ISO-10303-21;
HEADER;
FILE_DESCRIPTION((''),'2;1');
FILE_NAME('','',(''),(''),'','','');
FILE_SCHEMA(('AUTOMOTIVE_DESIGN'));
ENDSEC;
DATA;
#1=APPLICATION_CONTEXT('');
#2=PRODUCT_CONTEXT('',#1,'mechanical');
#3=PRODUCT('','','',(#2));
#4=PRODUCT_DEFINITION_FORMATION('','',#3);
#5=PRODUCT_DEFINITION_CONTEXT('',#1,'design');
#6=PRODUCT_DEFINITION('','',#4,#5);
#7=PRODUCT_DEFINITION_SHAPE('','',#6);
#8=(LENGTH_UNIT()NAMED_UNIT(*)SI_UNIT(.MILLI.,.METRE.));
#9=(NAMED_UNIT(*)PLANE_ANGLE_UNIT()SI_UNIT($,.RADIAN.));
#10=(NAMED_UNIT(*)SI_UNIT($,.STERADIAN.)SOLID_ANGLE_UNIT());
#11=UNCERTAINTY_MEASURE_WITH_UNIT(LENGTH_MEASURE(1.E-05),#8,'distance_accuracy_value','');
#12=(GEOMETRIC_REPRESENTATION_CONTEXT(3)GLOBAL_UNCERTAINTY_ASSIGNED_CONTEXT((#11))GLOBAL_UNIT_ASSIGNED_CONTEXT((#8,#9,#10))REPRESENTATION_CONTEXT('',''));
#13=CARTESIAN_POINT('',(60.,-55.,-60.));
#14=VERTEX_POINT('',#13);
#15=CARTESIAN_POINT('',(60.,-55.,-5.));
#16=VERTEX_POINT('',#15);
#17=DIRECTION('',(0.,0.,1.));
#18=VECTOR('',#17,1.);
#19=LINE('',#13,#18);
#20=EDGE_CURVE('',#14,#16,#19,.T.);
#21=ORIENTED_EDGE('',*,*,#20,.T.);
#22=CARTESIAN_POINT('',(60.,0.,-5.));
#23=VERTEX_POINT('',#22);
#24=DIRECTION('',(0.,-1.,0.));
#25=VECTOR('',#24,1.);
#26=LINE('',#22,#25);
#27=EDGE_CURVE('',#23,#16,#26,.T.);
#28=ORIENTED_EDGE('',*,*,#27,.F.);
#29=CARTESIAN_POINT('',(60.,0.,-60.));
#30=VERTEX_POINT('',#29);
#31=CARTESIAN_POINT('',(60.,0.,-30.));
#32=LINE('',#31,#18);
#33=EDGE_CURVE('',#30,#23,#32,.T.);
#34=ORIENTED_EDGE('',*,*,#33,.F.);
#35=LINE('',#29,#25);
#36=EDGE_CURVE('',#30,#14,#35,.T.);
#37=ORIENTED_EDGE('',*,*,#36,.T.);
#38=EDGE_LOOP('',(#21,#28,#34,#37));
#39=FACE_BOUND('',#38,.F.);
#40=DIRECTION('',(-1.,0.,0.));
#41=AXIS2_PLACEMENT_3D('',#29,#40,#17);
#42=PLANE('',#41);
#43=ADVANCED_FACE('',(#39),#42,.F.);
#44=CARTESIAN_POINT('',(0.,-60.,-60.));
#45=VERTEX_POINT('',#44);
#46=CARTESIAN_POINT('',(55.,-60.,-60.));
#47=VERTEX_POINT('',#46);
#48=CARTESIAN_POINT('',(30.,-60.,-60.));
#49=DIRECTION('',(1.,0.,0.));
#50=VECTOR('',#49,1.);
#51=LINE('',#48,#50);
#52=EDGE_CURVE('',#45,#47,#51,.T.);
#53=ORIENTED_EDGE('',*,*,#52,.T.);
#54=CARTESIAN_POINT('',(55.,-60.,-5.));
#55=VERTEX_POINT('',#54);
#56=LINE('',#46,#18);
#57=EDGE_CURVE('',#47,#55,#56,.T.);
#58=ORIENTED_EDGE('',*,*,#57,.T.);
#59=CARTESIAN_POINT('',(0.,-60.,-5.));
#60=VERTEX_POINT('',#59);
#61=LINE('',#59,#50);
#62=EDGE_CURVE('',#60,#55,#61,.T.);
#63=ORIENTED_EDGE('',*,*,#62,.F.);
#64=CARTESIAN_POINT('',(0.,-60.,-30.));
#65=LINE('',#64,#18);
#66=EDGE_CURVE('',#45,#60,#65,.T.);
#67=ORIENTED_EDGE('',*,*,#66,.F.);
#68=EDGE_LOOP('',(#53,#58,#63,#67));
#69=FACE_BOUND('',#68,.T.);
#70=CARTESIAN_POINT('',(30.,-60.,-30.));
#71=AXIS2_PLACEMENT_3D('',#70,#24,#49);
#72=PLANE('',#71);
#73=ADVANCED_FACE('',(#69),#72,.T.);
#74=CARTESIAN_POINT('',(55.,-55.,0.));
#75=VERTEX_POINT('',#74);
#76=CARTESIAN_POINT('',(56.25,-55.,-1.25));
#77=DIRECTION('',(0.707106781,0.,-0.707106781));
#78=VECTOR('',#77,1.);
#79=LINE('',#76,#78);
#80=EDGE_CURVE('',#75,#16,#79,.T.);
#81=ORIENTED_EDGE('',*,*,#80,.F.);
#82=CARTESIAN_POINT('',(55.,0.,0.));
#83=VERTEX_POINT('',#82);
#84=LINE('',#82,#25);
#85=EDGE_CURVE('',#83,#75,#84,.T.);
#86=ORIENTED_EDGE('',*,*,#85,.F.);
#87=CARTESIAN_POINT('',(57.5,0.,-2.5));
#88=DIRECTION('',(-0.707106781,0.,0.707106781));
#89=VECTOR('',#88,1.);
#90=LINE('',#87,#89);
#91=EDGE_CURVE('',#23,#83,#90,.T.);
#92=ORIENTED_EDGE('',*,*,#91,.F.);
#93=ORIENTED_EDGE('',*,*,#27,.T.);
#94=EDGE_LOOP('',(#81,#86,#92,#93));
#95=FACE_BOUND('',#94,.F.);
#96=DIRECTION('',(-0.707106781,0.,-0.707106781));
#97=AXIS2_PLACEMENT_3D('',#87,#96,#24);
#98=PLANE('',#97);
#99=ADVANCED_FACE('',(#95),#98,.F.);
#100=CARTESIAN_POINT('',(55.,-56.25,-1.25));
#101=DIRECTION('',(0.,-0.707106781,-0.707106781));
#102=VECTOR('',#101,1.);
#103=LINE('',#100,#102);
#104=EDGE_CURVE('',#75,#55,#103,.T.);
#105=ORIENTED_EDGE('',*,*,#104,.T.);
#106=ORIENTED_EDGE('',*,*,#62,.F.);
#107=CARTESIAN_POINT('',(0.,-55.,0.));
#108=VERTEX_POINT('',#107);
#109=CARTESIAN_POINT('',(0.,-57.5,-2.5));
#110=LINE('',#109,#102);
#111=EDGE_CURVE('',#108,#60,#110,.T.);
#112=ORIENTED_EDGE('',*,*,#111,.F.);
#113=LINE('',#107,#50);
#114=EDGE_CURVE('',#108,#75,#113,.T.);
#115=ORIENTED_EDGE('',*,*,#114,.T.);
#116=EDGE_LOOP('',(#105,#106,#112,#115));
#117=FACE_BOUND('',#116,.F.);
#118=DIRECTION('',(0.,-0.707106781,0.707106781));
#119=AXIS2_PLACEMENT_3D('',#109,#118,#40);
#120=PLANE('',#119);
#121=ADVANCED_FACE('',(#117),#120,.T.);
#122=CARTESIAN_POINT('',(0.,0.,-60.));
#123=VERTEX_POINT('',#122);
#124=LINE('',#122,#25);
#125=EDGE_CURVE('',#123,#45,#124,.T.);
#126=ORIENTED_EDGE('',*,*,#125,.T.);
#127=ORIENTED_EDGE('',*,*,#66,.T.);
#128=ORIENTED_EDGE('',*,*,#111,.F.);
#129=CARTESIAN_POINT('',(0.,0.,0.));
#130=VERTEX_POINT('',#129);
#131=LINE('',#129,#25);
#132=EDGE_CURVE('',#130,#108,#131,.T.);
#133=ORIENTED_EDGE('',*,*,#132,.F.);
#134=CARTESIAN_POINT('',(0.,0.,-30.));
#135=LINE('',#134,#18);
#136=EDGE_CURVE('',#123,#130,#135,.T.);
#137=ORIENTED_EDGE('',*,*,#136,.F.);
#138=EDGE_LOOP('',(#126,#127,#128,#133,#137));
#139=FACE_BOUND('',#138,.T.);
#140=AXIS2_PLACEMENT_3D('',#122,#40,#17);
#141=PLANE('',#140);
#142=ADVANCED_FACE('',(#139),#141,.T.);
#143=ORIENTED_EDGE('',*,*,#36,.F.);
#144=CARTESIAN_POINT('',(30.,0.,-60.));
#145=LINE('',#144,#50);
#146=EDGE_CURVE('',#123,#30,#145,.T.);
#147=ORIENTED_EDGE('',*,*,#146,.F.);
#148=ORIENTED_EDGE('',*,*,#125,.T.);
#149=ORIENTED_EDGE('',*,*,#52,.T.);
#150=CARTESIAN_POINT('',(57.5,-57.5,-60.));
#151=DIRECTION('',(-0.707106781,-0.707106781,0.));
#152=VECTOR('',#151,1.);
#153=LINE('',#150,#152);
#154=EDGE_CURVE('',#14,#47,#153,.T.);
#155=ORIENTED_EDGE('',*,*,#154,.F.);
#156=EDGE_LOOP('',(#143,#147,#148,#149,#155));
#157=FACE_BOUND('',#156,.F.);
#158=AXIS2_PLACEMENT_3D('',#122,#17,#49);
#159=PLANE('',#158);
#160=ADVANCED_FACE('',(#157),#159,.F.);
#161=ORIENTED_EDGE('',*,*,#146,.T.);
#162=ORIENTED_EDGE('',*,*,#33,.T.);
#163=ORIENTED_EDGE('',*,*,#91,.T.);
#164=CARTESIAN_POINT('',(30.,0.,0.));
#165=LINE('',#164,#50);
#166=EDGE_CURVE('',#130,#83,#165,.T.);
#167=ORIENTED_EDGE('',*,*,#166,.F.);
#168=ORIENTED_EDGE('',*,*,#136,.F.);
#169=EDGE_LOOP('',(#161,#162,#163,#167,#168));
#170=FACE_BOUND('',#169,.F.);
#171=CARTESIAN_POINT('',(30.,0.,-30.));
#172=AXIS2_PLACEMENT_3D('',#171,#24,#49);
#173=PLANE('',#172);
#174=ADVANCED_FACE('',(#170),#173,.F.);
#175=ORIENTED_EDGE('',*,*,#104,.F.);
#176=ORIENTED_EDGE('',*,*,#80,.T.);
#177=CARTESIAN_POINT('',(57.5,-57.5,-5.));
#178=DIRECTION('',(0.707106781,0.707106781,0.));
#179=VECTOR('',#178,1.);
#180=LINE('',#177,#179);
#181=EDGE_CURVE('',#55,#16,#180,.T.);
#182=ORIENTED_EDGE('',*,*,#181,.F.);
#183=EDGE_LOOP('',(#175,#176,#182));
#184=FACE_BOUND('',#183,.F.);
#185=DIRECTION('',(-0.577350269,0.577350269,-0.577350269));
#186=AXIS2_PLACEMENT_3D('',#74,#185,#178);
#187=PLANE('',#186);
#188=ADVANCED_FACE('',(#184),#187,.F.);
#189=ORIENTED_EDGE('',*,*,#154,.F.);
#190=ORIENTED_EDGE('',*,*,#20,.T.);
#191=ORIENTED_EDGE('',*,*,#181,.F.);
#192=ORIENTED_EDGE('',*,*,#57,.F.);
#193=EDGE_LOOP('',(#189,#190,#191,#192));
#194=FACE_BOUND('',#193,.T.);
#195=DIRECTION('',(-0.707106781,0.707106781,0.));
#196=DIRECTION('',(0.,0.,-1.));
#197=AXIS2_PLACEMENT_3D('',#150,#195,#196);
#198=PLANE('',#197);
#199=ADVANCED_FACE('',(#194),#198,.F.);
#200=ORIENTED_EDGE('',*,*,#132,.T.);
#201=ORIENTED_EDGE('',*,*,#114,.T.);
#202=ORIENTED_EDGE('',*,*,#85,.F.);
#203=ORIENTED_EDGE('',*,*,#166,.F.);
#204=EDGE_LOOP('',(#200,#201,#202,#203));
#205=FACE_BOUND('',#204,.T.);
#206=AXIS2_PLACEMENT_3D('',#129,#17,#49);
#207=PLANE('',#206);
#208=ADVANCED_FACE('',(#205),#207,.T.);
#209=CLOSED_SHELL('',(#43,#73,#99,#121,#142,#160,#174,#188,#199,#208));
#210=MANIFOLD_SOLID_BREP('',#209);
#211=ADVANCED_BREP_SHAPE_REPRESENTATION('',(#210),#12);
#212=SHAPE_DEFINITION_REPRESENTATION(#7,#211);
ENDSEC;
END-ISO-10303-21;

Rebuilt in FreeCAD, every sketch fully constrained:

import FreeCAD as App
import Part
import Sketcher
Q = App.Units.Quantity


def edges_at(feature, points):
    """Names of the edges that pass closest to the given points."""
    edges = feature.Shape.Edges
    near = lambda p: min(range(len(edges)), key=lambda i: edges[i].distToShape(Part.Vertex(*p))[0])
    return sorted({f"Edge{near(p) + 1}" for p in points})

doc = App.newDocument("Part")
body = doc.addObject("PartDesign::Body", "Body")

sketch1 = body.newObject("Sketcher::SketchObject", "Sketch")
sketch1.AttachmentSupport = (doc.getObject("XZ_Plane"), [""])
sketch1.MapMode = "FlatFace"
sketch1.addGeometry([
    Part.LineSegment(App.Vector(0, 0, 0), App.Vector(0, -60, 0)),
    Part.LineSegment(App.Vector(0, -60, 0), App.Vector(60, -60, 0)),
    Part.LineSegment(App.Vector(60, -60, 0), App.Vector(60, 0, 0)),
    Part.LineSegment(App.Vector(60, 0, 0), App.Vector(0, 0, 0)),
], False)
sketch1.addConstraint([
    Sketcher.Constraint("Coincident", 0, 2, 1, 1),
    Sketcher.Constraint("Coincident", 1, 2, 2, 1),
    Sketcher.Constraint("Coincident", 2, 2, 3, 1),
    Sketcher.Constraint("Coincident", 3, 2, 0, 1),
    Sketcher.Constraint("Vertical", 0),
    Sketcher.Constraint("Horizontal", 1),
    Sketcher.Constraint("Vertical", 2),
    Sketcher.Constraint("Horizontal", 3),
    Sketcher.Constraint("Coincident", 3, 2, -1, 1),
    Sketcher.Constraint("Equal", 3, 0),
    Sketcher.Constraint("DistanceX", 1, 1, 1, 2, Q("60 mm")),
])
pad1 = body.newObject("PartDesign::Pad", "Pad")
pad1.Profile = sketch1
pad1.Length = 60
doc.recompute()

chamfer = body.newObject("PartDesign::Chamfer", "Chamfer")
chamfer.Base = (pad1, edges_at(pad1, [(60, -60, -30), (30, -60, 0), (60, -30, 0)]))
chamfer.Size = 5

doc.recompute()
